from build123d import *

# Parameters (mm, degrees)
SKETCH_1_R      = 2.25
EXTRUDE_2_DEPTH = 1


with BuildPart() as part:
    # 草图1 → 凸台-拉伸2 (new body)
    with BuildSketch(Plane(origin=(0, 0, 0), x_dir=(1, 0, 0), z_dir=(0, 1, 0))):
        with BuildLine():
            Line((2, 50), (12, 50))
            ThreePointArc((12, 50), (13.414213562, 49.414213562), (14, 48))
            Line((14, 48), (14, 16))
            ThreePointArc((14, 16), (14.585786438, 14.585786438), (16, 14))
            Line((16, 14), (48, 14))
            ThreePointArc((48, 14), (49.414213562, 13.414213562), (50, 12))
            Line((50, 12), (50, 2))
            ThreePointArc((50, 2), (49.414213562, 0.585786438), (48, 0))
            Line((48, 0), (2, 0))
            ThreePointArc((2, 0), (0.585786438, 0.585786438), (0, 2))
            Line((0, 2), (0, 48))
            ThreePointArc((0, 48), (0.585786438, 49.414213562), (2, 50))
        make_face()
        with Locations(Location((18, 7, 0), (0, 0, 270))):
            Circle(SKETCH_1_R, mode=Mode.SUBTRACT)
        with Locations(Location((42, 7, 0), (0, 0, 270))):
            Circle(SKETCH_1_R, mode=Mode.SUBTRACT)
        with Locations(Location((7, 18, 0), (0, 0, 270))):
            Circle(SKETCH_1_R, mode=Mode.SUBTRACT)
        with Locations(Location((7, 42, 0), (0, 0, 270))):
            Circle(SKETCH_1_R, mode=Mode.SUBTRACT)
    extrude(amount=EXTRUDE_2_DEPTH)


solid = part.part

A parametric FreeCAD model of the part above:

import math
import FreeCAD as App
import Part
import Sketcher
Q = App.Units.Quantity

doc = App.newDocument("Part")
body = doc.addObject("PartDesign::Body", "Body")

# Sketch on XZ plane
sketch1 = doc.addObject("Sketcher::SketchObject", "Sketch")
body.addObject(sketch1)
sketch1.AttachmentSupport = (doc.XZ_Plane, [""])
sketch1.MapMode = "FlatFace"
sketch1.addGeometry(Part.LineSegment(App.Vector(12, -50, 0), App.Vector(2, -50, 0)), False)
sketch1.addGeometry(Part.ArcOfCircle(Part.Circle(App.Vector(2, -48, 0), App.Vector(0, 0, 1), 2), math.radians(-180), math.radians(-90)), False)
sketch1.addGeometry(Part.LineSegment(App.Vector(0, -48, 0), App.Vector(0, -2, 0)), False)
sketch1.addGeometry(Part.ArcOfCircle(Part.Circle(App.Vector(2, -2, 0), App.Vector(0, 0, 1), 2), math.radians(90), math.radians(180)), False)
sketch1.addGeometry(Part.LineSegment(App.Vector(2, 0, 0), App.Vector(48, 0, 0)), False)
sketch1.addGeometry(Part.ArcOfCircle(Part.Circle(App.Vector(48, -2, 0), App.Vector(0, 0, 1), 2), math.radians(0), math.radians(90)), False)
sketch1.addGeometry(Part.LineSegment(App.Vector(50, -2, 0), App.Vector(50, -12, 0)), False)
sketch1.addGeometry(Part.ArcOfCircle(Part.Circle(App.Vector(48, -12, 0), App.Vector(0, 0, 1), 2), math.radians(-90), math.radians(0)), False)
sketch1.addGeometry(Part.LineSegment(App.Vector(48, -14, 0), App.Vector(16, -14, 0)), False)
sketch1.addGeometry(Part.ArcOfCircle(Part.Circle(App.Vector(16, -16, 0), App.Vector(0, 0, 1), 2), math.radians(90), math.radians(180)), False)
sketch1.addGeometry(Part.LineSegment(App.Vector(14, -16, 0), App.Vector(14, -48, 0)), False)
sketch1.addGeometry(Part.ArcOfCircle(Part.Circle(App.Vector(12, -48, 0), App.Vector(0, 0, 1), 2), math.radians(-90), math.radians(0)), False)
sketch1.addGeometry(Part.Circle(App.Vector(42, -7, 0), App.Vector(0, 0, 1), 2.2), False)
sketch1.addGeometry(Part.Circle(App.Vector(18, -7, 0), App.Vector(0, 0, 1), 2.2), False)
sketch1.addGeometry(Part.Circle(App.Vector(7, -18, 0), App.Vector(0, 0, 1), 2.2), False)
sketch1.addGeometry(Part.Circle(App.Vector(7, -42, 0), App.Vector(0, 0, 1), 2.2), False)
sketch1.addConstraint(Sketcher.Constraint("Tangent", 0, 2, 1, 2))
sketch1.addConstraint(Sketcher.Constraint("Tangent", 1, 1, 2, 1))
sketch1.addConstraint(Sketcher.Constraint("Tangent", 2, 2, 3, 2))
sketch1.addConstraint(Sketcher.Constraint("Tangent", 3, 1, 4, 1))
sketch1.addConstraint(Sketcher.Constraint("Tangent", 4, 2, 5, 2))
sketch1.addConstraint(Sketcher.Constraint("Tangent", 5, 1, 6, 1))
sketch1.addConstraint(Sketcher.Constraint("Tangent", 6, 2, 7, 2))
sketch1.addConstraint(Sketcher.Constraint("Tangent", 7, 1, 8, 1))
sketch1.addConstraint(Sketcher.Constraint("Tangent", 8, 2, 9, 1))
sketch1.addConstraint(Sketcher.Constraint("Tangent", 9, 2, 10, 1))
sketch1.addConstraint(Sketcher.Constraint("Tangent", 10, 2, 11, 2))
sketch1.addConstraint(Sketcher.Constraint("Tangent", 11, 1, 0, 1))
sketch1.addConstraint(Sketcher.Constraint("Horizontal", 0))
sketch1.addConstraint(Sketcher.Constraint("Vertical", 2))
sketch1.addConstraint(Sketcher.Constraint("Horizontal", 4))
sketch1.addConstraint(Sketcher.Constraint("Vertical", 6))
sketch1.addConstraint(Sketcher.Constraint("Horizontal", 8))
sketch1.addConstraint(Sketcher.Constraint("Vertical", 10))
sketch1.addConstraint(Sketcher.Constraint("Equal", 1, 3))
sketch1.addConstraint(Sketcher.Constraint("Equal", 3, 5))
sketch1.addConstraint(Sketcher.Constraint("Equal", 5, 7))
sketch1.addConstraint(Sketcher.Constraint("Equal", 7, 9))
sketch1.addConstraint(Sketcher.Constraint("Equal", 9, 11))
sketch1.addConstraint(Sketcher.Constraint("Equal", 12, 13))
sketch1.addConstraint(Sketcher.Constraint("Equal", 13, 14))
sketch1.addConstraint(Sketcher.Constraint("Equal", 14, 15))
sketch1.addConstraint(Sketcher.Constraint("PointOnObject", 1, 1, -2))
sketch1.addConstraint(Sketcher.Constraint("PointOnObject", 3, 1, -1))
sketch1.addConstraint(Sketcher.Constraint("Horizontal", 12, 3, 13, 3))
sketch1.addConstraint(Sketcher.Constraint("Vertical", 14, 3, 15, 3))
sketch1.addConstraint(Sketcher.Constraint("Equal", 4, 2))
sketch1.addConstraint(Sketcher.Constraint("Equal", 0, 6))
sketch1.addConstraint(Sketcher.Constraint("Radius", 1, Q("2 mm")))
sketch1.addConstraint(Sketcher.Constraint("Diameter", 12, Q("4.5 mm")))
sketch1.addConstraint(Sketcher.Constraint("DistanceX", 0, 2, 0, 1, Q("10 mm")))
sketch1.addConstraint(Sketcher.Constraint("DistanceX", 4, 1, 4, 2, Q("46 mm")))
sketch1.addConstraint(Sketcher.Constraint("DistanceX", -1, 1, 12, 3, Q("42 mm")))
sketch1.addConstraint(Sketcher.Constraint("DistanceY", 12, 3, -1, 1, Q("7 mm")))
sketch1.addConstraint(Sketcher.Constraint("DistanceX", -1, 1, 13, 3, Q("18 mm")))
sketch1.addConstraint(Sketcher.Constraint("DistanceX", -1, 1, 14, 3, Q("7 mm")))
sketch1.addConstraint(Sketcher.Constraint("DistanceY", 14, 3, -1, 1, Q("18 mm")))
sketch1.addConstraint(Sketcher.Constraint("DistanceY", 15, 3, -1, 1, Q("42 mm")))
pad1 = doc.addObject("PartDesign::Pad", "Pad")
body.addObject(pad1)
pad1.Profile = sketch1
pad1.Length = 1
pad1.Reversed = True

doc.recompute()
